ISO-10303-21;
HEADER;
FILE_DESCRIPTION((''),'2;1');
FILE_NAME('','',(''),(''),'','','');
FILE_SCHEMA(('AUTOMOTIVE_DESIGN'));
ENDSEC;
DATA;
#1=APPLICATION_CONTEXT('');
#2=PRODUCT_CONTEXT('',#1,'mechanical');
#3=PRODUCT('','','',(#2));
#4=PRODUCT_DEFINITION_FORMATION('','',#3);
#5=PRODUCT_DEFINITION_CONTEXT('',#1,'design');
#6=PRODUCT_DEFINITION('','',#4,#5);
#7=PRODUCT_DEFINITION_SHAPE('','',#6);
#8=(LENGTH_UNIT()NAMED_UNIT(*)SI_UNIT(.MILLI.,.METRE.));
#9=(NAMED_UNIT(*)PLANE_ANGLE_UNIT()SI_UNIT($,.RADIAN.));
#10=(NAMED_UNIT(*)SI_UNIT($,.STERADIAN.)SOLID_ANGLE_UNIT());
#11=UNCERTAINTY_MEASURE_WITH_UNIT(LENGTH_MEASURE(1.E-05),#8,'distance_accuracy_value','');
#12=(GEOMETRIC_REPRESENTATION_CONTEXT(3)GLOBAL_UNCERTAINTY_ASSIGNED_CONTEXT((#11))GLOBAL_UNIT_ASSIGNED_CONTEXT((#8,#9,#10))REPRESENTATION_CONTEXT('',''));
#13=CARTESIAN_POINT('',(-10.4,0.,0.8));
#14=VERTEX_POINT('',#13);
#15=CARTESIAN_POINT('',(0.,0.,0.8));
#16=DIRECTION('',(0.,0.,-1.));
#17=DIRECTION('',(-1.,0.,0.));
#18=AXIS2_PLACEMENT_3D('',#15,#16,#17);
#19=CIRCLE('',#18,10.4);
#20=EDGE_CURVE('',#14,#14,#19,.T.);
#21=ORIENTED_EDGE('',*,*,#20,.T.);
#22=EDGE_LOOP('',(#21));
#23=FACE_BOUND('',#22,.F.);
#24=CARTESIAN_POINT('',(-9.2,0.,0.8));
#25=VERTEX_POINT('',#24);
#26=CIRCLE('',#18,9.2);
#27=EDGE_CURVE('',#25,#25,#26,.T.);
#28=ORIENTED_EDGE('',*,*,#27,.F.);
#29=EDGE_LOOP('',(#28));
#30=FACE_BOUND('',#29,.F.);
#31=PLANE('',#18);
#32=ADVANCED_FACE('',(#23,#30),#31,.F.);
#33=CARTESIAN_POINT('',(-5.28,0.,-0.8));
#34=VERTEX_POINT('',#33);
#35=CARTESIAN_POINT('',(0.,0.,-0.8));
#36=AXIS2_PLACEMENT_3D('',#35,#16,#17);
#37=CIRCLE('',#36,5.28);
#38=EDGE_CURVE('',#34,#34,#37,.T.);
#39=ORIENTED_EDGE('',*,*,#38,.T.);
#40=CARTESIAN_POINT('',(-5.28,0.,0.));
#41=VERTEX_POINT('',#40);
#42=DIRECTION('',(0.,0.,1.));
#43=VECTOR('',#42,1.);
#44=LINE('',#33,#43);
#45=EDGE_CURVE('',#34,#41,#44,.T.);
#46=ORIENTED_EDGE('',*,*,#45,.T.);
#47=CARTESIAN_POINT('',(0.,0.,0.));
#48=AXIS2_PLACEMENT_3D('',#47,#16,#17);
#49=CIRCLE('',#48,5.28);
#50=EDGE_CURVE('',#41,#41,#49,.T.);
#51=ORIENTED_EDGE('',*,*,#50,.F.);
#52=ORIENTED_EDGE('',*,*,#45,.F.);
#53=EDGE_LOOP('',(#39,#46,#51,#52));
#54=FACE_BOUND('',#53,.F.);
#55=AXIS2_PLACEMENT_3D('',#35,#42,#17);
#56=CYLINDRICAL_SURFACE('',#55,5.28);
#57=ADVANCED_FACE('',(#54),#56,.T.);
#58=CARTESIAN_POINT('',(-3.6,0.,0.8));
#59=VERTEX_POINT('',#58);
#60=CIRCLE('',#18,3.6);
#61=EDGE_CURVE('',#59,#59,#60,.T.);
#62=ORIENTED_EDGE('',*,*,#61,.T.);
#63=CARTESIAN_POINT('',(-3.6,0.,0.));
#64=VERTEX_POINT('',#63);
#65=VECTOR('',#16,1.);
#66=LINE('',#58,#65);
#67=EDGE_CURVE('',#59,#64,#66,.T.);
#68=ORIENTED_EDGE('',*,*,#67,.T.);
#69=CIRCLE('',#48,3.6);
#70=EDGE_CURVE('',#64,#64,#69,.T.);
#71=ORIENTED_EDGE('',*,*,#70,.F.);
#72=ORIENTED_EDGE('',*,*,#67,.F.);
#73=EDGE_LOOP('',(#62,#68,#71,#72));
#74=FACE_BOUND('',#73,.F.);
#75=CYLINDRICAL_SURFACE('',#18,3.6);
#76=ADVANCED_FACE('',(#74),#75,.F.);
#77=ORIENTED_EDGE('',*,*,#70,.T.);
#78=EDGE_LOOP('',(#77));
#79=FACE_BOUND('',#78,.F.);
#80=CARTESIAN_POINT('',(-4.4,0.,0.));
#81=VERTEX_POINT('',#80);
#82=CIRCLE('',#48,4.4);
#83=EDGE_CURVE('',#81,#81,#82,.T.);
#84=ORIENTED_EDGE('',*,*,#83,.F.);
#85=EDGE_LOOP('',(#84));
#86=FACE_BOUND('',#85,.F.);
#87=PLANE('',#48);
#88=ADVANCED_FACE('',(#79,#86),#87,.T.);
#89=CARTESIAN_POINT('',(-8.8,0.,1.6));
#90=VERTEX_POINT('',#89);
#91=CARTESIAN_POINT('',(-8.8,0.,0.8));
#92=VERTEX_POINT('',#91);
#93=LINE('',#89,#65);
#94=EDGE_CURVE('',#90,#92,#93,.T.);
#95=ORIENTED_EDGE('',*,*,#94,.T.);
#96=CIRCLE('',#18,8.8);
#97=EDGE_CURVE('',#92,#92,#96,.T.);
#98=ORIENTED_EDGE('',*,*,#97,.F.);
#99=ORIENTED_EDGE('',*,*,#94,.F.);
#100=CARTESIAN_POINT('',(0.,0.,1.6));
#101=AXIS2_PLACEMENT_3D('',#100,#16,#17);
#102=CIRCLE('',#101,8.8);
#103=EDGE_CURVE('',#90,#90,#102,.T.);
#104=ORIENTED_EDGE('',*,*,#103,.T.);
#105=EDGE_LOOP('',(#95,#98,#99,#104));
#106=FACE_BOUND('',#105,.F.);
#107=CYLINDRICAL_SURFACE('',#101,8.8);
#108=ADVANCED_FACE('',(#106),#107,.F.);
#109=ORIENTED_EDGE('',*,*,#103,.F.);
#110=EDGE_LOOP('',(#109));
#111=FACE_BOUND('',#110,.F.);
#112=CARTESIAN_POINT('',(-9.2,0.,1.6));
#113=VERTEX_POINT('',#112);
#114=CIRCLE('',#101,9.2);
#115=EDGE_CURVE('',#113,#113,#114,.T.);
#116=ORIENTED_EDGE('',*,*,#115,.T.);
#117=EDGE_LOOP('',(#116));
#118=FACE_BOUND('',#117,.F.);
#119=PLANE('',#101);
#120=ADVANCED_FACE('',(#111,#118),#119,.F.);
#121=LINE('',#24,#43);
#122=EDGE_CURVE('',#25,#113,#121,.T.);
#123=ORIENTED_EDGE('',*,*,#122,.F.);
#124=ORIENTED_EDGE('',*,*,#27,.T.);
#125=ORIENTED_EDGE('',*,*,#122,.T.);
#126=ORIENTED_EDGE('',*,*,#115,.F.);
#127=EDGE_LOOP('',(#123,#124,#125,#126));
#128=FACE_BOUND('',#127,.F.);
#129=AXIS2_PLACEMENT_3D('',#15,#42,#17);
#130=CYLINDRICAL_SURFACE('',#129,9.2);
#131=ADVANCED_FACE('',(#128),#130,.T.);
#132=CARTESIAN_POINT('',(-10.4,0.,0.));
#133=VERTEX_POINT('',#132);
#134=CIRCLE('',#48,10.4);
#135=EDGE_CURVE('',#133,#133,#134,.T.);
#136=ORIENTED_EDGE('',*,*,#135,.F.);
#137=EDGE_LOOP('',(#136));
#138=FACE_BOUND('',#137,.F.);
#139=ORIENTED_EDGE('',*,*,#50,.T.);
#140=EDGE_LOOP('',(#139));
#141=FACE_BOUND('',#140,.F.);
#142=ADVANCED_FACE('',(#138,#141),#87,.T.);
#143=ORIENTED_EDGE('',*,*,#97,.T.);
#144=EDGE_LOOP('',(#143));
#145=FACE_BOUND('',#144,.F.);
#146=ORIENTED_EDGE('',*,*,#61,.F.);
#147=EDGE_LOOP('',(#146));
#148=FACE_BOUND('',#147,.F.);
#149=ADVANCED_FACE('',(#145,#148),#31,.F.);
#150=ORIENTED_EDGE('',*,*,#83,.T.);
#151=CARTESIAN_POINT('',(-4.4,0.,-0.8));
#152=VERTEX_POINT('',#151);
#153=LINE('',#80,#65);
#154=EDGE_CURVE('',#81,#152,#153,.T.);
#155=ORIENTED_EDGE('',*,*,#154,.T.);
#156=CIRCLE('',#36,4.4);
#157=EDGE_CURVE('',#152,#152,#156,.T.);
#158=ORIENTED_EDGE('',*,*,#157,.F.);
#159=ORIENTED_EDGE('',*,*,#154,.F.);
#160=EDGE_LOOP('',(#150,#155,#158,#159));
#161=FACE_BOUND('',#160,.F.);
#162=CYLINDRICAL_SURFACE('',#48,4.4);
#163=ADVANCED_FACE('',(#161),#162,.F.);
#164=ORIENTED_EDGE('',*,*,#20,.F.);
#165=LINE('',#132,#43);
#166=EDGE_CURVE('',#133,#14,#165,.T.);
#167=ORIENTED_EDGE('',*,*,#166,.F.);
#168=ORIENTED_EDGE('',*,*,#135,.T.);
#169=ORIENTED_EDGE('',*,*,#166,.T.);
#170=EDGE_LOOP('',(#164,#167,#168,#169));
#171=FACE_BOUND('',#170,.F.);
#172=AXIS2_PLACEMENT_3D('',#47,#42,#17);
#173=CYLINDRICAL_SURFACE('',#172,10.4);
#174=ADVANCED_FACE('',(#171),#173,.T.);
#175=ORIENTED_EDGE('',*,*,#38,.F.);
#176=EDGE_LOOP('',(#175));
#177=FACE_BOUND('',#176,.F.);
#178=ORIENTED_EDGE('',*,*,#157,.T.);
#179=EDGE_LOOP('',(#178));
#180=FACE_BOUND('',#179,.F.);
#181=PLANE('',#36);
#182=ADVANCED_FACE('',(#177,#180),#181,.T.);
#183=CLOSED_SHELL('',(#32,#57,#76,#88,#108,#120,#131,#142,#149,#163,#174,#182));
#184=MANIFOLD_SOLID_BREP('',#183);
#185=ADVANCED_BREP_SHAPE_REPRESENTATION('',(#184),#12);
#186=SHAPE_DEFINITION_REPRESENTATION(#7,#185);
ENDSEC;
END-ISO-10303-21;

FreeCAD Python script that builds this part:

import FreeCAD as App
import Part
import Sketcher
Q = App.Units.Quantity

doc = App.newDocument("Part")
body = doc.addObject("PartDesign::Body", "Body")

# Sketch on XZ plane
sketch1 = doc.addObject("Sketcher::SketchObject", "Sketch")
body.addObject(sketch1)
sketch1.AttachmentSupport = (doc.XZ_Plane, [""])
sketch1.MapMode = "FlatFace"
sketch1.addGeometry(Part.LineSegment(App.Vector(-8.8, 0.8, 0), App.Vector(-3.6, 0.8, 0)), False)
sketch1.addGeometry(Part.LineSegment(App.Vector(-3.6, 0.8, 0), App.Vector(-3.6, 0, 0)), False)
sketch1.addGeometry(Part.LineSegment(App.Vector(-3.6, 0, 0), App.Vector(-4.4, 0, 0)), False)
sketch1.addGeometry(Part.LineSegment(App.Vector(-4.4, 0, 0), App.Vector(-4.4, -0.8, 0)), False)
sketch1.addGeometry(Part.LineSegment(App.Vector(-4.4, -0.8, 0), App.Vector(-5.28, -0.8, 0)), False)
sketch1.addGeometry(Part.LineSegment(App.Vector(-5.28, -0.8, 0), App.Vector(-5.28, 0, 0)), False)
sketch1.addGeometry(Part.LineSegment(App.Vector(-5.28, 0, 0), App.Vector(-10.4, 0, 0)), False)
sketch1.addGeometry(Part.LineSegment(App.Vector(-10.4, 0, 0), App.Vector(-10.4, 0.8, 0)), False)
sketch1.addGeometry(Part.LineSegment(App.Vector(-10.4, 0.8, 0), App.Vector(-9.2, 0.8, 0)), False)
sketch1.addGeometry(Part.LineSegment(App.Vector(-9.2, 0.8, 0), App.Vector(-9.2, 1.6, 0)), False)
sketch1.addGeometry(Part.LineSegment(App.Vector(-9.2, 1.6, 0), App.Vector(-8.8, 1.6, 0)), False)
sketch1.addGeometry(Part.LineSegment(App.Vector(-8.8, 1.6, 0), App.Vector(-8.8, 0.8, 0)), False)
sketch1.addConstraint(Sketcher.Constraint("Coincident", 0, 2, 1, 1))
sketch1.addConstraint(Sketcher.Constraint("Coincident", 1, 2, 2, 1))
sketch1.addConstraint(Sketcher.Constraint("Coincident", 2, 2, 3, 1))
sketch1.addConstraint(Sketcher.Constraint("Coincident", 3, 2, 4, 1))
sketch1.addConstraint(Sketcher.Constraint("Coincident", 4, 2, 5, 1))
sketch1.addConstraint(Sketcher.Constraint("Coincident", 5, 2, 6, 1))
sketch1.addConstraint(Sketcher.Constraint("Coincident", 6, 2, 7, 1))
sketch1.addConstraint(Sketcher.Constraint("Coincident", 7, 2, 8, 1))
sketch1.addConstraint(Sketcher.Constraint("Coincident", 8, 2, 9, 1))
sketch1.addConstraint(Sketcher.Constraint("Coincident", 9, 2, 10, 1))
sketch1.addConstraint(Sketcher.Constraint("Coincident", 10, 2, 11, 1))
sketch1.addConstraint(Sketcher.Constraint("Coincident", 11, 2, 0, 1))
sketch1.addConstraint(Sketcher.Constraint("Horizontal", 0))
sketch1.addConstraint(Sketcher.Constraint("Vertical", 1))
sketch1.addConstraint(Sketcher.Constraint("Horizontal", 2))
sketch1.addConstraint(Sketcher.Constraint("Vertical", 3))
sketch1.addConstraint(Sketcher.Constraint("Horizontal", 4))
sketch1.addConstraint(Sketcher.Constraint("Vertical", 5))
sketch1.addConstraint(Sketcher.Constraint("Horizontal", 6))
sketch1.addConstraint(Sketcher.Constraint("Vertical", 7))
sketch1.addConstraint(Sketcher.Constraint("Horizontal", 8))
sketch1.addConstraint(Sketcher.Constraint("Vertical", 9))
sketch1.addConstraint(Sketcher.Constraint("Horizontal", 10))
sketch1.addConstraint(Sketcher.Constraint("Vertical", 11))
sketch1.addConstraint(Sketcher.Constraint("PointOnObject", 1, 2, -1))
sketch1.addConstraint(Sketcher.Constraint("PointOnObject", 5, 2, -1))
sketch1.addConstraint(Sketcher.Constraint("Horizontal", 0, 2, 7, 2))
sketch1.addConstraint(Sketcher.Constraint("Equal", 2, 1))
sketch1.addConstraint(Sketcher.Constraint("Equal", 1, 3))
sketch1.addConstraint(Sketcher.Constraint("Equal", 7, 9))
sketch1.addConstraint(Sketcher.Constraint("DistanceX", 2, 2, 2, 1, Q("0.8 mm")))
sketch1.addConstraint(Sketcher.Constraint("DistanceX", 10, 2, -1, 1, Q("8.8 mm")))
sketch1.addConstraint(Sketcher.Constraint("DistanceX", 0, 1, 0, 2, Q("5.2 mm")))
sketch1.addConstraint(Sketcher.Constraint("DistanceX", 8, 1, 8, 2, Q("1.2 mm")))
sketch1.addConstraint(Sketcher.Constraint("DistanceX", 10, 1, 10, 2, Q("0.4 mm")))
sketch1.addConstraint(Sketcher.Constraint("DistanceX", 4, 2, 4, 1, Q("0.88 mm")))
revolution = doc.addObject("PartDesign::Revolution", "Revolution")
body.addObject(revolution)
revolution.Profile = sketch1
revolution.ReferenceAxis = (sketch1, ["V_Axis"])
revolution.Angle = 360

doc.recompute()
